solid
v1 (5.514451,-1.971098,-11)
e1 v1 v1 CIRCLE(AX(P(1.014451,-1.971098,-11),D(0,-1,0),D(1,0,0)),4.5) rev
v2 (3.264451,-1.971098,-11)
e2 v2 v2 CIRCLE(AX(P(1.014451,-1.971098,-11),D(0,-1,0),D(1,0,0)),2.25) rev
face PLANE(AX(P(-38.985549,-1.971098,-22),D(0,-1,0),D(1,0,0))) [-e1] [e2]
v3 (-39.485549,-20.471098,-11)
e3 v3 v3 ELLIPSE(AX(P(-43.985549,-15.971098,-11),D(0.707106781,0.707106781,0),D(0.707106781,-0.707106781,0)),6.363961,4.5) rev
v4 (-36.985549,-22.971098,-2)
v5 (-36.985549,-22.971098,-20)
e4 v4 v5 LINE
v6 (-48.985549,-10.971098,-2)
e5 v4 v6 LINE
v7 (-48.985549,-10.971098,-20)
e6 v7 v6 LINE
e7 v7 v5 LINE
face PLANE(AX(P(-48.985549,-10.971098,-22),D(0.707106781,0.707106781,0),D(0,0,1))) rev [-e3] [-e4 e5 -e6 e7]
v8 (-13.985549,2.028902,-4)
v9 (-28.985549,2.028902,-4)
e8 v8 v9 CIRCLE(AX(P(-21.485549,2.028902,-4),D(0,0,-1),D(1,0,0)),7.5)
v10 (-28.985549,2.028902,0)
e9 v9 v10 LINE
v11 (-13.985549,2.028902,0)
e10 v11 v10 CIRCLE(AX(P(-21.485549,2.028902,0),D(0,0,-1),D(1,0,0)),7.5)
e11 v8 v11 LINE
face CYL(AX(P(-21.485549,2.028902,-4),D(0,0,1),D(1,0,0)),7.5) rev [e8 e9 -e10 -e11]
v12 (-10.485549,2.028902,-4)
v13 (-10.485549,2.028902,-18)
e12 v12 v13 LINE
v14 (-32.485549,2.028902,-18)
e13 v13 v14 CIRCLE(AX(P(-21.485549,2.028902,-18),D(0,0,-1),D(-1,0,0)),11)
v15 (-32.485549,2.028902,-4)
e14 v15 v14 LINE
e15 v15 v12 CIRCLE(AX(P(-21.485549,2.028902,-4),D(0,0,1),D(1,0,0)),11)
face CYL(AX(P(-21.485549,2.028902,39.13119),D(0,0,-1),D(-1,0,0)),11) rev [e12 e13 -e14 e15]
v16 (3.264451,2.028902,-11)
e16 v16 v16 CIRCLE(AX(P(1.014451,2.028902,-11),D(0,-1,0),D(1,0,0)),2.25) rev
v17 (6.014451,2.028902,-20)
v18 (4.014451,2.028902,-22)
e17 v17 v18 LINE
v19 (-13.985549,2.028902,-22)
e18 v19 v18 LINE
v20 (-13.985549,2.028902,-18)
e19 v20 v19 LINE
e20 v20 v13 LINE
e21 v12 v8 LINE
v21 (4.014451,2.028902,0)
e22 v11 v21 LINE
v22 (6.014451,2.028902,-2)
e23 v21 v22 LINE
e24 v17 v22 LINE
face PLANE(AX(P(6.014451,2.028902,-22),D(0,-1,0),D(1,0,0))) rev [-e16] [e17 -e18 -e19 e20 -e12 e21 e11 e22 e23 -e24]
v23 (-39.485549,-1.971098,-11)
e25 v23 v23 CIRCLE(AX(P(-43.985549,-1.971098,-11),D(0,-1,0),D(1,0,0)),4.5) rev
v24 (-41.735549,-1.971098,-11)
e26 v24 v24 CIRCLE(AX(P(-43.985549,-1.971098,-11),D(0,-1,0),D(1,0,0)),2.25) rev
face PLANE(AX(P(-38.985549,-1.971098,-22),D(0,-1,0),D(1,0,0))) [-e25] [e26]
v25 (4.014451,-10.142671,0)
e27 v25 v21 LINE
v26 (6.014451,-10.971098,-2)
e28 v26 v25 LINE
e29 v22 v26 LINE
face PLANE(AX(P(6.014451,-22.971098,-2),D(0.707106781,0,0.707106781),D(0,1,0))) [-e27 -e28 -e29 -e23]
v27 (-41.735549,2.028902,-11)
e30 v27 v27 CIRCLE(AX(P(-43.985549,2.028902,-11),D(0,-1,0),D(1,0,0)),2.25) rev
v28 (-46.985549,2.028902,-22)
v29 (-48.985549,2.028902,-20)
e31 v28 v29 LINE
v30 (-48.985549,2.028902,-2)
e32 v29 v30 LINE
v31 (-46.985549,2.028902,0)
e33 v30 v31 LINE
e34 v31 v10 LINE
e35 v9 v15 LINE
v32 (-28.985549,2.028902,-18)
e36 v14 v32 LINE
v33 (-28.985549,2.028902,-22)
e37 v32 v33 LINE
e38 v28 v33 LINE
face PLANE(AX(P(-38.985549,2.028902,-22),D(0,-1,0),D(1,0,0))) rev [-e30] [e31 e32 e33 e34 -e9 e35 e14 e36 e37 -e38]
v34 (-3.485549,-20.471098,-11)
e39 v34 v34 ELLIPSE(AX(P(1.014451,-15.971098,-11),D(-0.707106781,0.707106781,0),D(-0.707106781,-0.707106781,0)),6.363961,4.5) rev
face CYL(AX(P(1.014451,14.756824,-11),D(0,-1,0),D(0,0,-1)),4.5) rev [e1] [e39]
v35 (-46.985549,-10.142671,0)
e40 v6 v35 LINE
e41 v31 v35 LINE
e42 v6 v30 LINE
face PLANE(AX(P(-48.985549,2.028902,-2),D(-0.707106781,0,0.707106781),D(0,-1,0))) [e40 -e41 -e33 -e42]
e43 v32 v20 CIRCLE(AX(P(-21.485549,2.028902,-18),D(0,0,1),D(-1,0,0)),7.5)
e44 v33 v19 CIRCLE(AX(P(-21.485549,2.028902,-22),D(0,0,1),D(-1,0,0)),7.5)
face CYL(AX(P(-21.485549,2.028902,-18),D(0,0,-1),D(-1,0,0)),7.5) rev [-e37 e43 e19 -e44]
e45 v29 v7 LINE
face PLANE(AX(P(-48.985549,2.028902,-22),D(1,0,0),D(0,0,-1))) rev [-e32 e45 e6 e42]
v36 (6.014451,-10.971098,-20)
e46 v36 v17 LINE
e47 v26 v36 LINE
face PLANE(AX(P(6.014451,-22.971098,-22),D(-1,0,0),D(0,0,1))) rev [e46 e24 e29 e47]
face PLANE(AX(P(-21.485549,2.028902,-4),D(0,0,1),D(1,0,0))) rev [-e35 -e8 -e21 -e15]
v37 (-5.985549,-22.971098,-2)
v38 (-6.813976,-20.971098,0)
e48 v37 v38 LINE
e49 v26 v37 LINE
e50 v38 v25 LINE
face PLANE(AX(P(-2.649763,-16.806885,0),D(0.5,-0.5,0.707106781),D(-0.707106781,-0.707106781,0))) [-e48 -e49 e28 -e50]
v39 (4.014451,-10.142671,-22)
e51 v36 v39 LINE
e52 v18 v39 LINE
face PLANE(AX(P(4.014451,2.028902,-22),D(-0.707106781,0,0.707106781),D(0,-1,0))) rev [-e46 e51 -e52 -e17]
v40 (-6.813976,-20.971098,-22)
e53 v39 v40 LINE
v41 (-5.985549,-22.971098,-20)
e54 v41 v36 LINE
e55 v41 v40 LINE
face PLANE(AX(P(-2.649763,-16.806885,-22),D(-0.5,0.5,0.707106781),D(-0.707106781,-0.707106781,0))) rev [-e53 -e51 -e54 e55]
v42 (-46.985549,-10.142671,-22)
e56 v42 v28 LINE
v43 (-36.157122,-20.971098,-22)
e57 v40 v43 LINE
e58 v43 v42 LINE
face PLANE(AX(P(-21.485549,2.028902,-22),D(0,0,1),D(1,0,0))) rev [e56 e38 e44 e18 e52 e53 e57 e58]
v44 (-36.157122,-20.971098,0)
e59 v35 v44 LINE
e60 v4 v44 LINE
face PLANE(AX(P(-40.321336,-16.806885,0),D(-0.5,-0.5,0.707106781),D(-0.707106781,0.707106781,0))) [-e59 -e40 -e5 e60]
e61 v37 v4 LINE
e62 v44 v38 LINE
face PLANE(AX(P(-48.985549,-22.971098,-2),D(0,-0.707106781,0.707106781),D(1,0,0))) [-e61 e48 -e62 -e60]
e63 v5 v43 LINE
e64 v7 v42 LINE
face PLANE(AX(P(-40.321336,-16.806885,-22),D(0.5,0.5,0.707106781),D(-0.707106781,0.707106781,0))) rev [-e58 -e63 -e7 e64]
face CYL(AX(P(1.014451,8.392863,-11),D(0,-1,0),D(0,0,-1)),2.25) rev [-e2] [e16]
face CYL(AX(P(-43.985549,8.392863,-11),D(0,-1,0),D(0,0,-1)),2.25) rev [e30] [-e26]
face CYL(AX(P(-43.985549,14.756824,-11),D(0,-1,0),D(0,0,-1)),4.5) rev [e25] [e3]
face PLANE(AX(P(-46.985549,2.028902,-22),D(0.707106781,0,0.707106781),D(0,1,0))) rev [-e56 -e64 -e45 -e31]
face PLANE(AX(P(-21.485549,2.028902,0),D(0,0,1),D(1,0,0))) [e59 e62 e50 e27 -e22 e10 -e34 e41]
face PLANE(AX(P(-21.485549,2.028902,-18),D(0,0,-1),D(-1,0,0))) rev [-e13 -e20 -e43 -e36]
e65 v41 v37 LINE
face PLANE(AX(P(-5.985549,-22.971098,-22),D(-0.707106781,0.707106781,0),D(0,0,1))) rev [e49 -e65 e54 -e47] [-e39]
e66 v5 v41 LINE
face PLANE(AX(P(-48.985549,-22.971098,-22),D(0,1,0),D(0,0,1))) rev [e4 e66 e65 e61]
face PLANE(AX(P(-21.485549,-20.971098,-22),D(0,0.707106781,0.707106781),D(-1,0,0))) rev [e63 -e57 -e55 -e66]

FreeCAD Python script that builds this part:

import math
import FreeCAD as App
import Part
import Sketcher

V = App.Vector


def edges_at(feature, points):
    """Names of the edges that pass closest to the given points."""
    edges = feature.Shape.Edges
    near = lambda p: min(range(len(edges)), key=lambda i: edges[i].distToShape(Part.Vertex(*p))[0])
    return sorted({f"Edge{near(p) + 1}" for p in points})

doc = App.newDocument("Part")
params = doc.addObject("Spreadsheet::Sheet", "Params")
for row, (alias, value) in enumerate([
    ("sketch1_radius", "17.5 mm"),
    ("sketch1_width", "10 mm"),
    ("sketch1_height", "25 mm"),
    ("pad1_length", "22 mm"),
    ("chamfer_size", "12 mm"),
    ("sketch2_diameter", "4.5 mm"),
    ("pocket1_length", "25 mm"),
    ("sketch3_diameter", "9 mm"),
    ("sketch3_diameter2", "4.5 mm"),
    ("pocket2_length", "21 mm"),
    ("chamfer2_size", "2 mm"),
    ("sketch4_radius", "11 mm"),
    ("sketch4_radius2", "17.5 mm"),
    ("pad2_length", "22 mm"),
    ("sketch5_radius", "11 mm"),
    ("sketch5_radius2", "7.5 mm"),
    ("pad3_length", "4 mm"),
    ("sketch6_radius", "11 mm"),
    ("sketch6_radius2", "7.5 mm"),
    ("pad4_length", "4 mm"),
], start=1):
    params.set(f"A{row}", alias)
    params.set(f"B{row}", "=" + value)
    params.setAlias(f"B{row}", alias)

body = doc.addObject("PartDesign::Body", "Body")

sketch1 = doc.addObject("Sketcher::SketchObject", "Sketch")
body.addObject(sketch1)
sketch1.AttachmentSupport = (doc.XY_Plane, [""])
sketch1.MapMode = "FlatFace"
sketch1.addGeometry([
    Part.LineSegment(V(-48.985549, 2.028902, 0), V(-38.985549, 2.028902, 0)),
    Part.ArcOfCircle(Part.Circle(V(-21.485549, 2.028902, 0), V(0, 0, 1), 17.5), math.radians(180), math.radians(360)),
    Part.LineSegment(V(-3.985549, 2.028902, 0), V(6.014451, 2.028902, 0)),
    Part.LineSegment(V(6.014451, 2.028902, 0), V(6.014451, -22.971098, 0)),
    Part.LineSegment(V(6.014451, -22.971098, 0), V(-48.985549, -22.971098, 0)),
    Part.LineSegment(V(-48.985549, -22.971098, 0), V(-48.985549, 2.028902, 0)),
], False)
sketch1.addConstraint([
    Sketcher.Constraint("Coincident", 0, 2, 1, 1),
    Sketcher.Constraint("Coincident", 1, 2, 2, 1),
    Sketcher.Constraint("Coincident", 2, 2, 3, 1),
    Sketcher.Constraint("Coincident", 3, 2, 4, 1),
    Sketcher.Constraint("Coincident", 4, 2, 5, 1),
    Sketcher.Constraint("Coincident", 5, 2, 0, 1),
    Sketcher.Constraint("Horizontal", 0),
    Sketcher.Constraint("Horizontal", 2),
    Sketcher.Constraint("Vertical", 3),
    Sketcher.Constraint("Horizontal", 4),
    Sketcher.Constraint("Vertical", 5),
    Sketcher.Constraint("Horizontal", 1, 3, 0, 2),
    Sketcher.Constraint("Horizontal", 0, 2, 1, 2),
    Sketcher.Constraint("Equal", 0, 2),
    Sketcher.Constraint("Radius", 1, 17.5),
    Sketcher.Constraint("DistanceX", 0, 1, 0, 2, 10.0),
    Sketcher.Constraint("DistanceY", 3, 2, 3, 1, 25.0),
    Sketcher.Constraint("DistanceY", -1, 1, 1, 3, 2.028902),
    Sketcher.Constraint("DistanceX", 1, 3, -1, 1, 21.485549),
])
sketch1.setExpression("Constraints[14]", "Params.sketch1_radius")
sketch1.setExpression("Constraints[15]", "Params.sketch1_width")
sketch1.setExpression("Constraints[16]", "Params.sketch1_height")
pad1 = doc.addObject("PartDesign::Pad", "Pad")
body.addObject(pad1)
pad1.Profile = sketch1
pad1.setExpression("Length", "Params.pad1_length")
pad1.Reversed = True
doc.recompute()

chamfer = doc.addObject("PartDesign::Chamfer", "Chamfer")
body.addObject(chamfer)
chamfer.Base = (pad1, edges_at(pad1, [(-48.986, -22.971, -11), (6.014, -22.971, -11)]))
chamfer.setExpression("Size", "Params.chamfer_size")

sketch2 = doc.addObject("Sketcher::SketchObject", "Sketch001")
body.addObject(sketch2)
sketch2.AttachmentSupport = (doc.XZ_Plane, [""])
sketch2.MapMode = "FlatFace"
sketch2.AttachmentOffset = App.Placement(V(0, 0, 22.971098), App.Rotation())
sketch2.addGeometry([
    Part.Circle(V(-43.985549, -11, 0), V(0, 0, 1), 2.25),
    Part.Circle(V(1.014451, -11, 0), V(0, 0, 1), 2.25),
], False)
sketch2.addConstraint([
    Sketcher.Constraint("Equal", 0, 1),
    Sketcher.Constraint("Horizontal", 0, 3, 1, 3),
    Sketcher.Constraint("Diameter", 0, 4.5),
    Sketcher.Constraint("DistanceY", 0, 3, -1, 1, 11.0),
    Sketcher.Constraint("DistanceX", 0, 3, 1, 3, 45.0),
    Sketcher.Constraint("DistanceX", 0, 3, -1, 1, 43.985549),
])
sketch2.setExpression("Constraints[2]", "Params.sketch2_diameter")
pocket1 = doc.addObject("PartDesign::Pocket", "Pocket")
body.addObject(pocket1)
pocket1.Profile = sketch2
pocket1.setExpression("Length", "Params.pocket1_length")

sketch3 = doc.addObject("Sketcher::SketchObject", "Sketch002")
body.addObject(sketch3)
sketch3.AttachmentSupport = (doc.XZ_Plane, [""])
sketch3.MapMode = "FlatFace"
sketch3.AttachmentOffset = App.Placement(V(0, 0, 22.971098), App.Rotation())
sketch3.addGeometry([
    Part.Circle(V(-43.985549, -11, 0), V(0, 0, 1), 4.5),
    Part.Circle(V(-43.985549, -11, 0), V(0, 0, 1), 2.25),
    Part.Circle(V(1.014451, -11, 0), V(0, 0, 1), 4.5),
    Part.Circle(V(1.014451, -11, 0), V(0, 0, 1), 2.25),
], False)
sketch3.addConstraint([
    Sketcher.Constraint("Coincident", 1, 3, 0, 3),
    Sketcher.Constraint("Coincident", 3, 3, 2, 3),
    Sketcher.Constraint("Equal", 0, 2),
    Sketcher.Constraint("Equal", 1, 3),
    Sketcher.Constraint("Horizontal", 1, 3, 2, 3),
    Sketcher.Constraint("Diameter", 0, 9.0),
    Sketcher.Constraint("Diameter", 1, 4.5),
    Sketcher.Constraint("DistanceY", 0, 3, -1, 1, 11.0),
    Sketcher.Constraint("DistanceX", 0, 3, 2, 3, 45.0),
    Sketcher.Constraint("DistanceX", 0, 3, -1, 1, 43.985549),
])
sketch3.setExpression("Constraints[5]", "Params.sketch3_diameter")
sketch3.setExpression("Constraints[6]", "Params.sketch3_diameter2")
pocket2 = doc.addObject("PartDesign::Pocket", "Pocket001")
body.addObject(pocket2)
pocket2.Profile = sketch3
pocket2.setExpression("Length", "Params.pocket2_length")
doc.recompute()

chamfer2 = doc.addObject("PartDesign::Chamfer", "Chamfer001")
body.addObject(chamfer2)
chamfer2.Base = (pocket2, edges_at(pocket2, [
    (6.014, -4.471, -22),
    (-21.486, -22.971, 0),
    (-21.486, -22.971, -22),
    (-48.986, -4.471, 0),
    (-42.986, -16.971, 0),
    (0.014, -16.971, 0),
    (-48.986, -4.471, -22),
    (-42.986, -16.971, -22),
    (0.014, -16.971, -22),
    (6.014, -4.471, 0),
]))
chamfer2.setExpression("Size", "Params.chamfer2_size")

sketch4 = doc.addObject("Sketcher::SketchObject", "Sketch003")
body.addObject(sketch4)
sketch4.AttachmentSupport = (doc.XY_Plane, [""])
sketch4.MapMode = "FlatFace"
sketch4.addGeometry([
    Part.LineSegment(V(-10.485549, 2.028902, 0), V(-3.985549, 2.028902, 0)),
    Part.ArcOfCircle(Part.Circle(V(-21.485549, 2.028902, 0), V(0, 0, 1), 17.5), math.radians(180), math.radians(360)),
    Part.LineSegment(V(-38.985549, 2.028902, 0), V(-32.485549, 2.028902, 0)),
    Part.ArcOfCircle(Part.Circle(V(-21.485549, 2.028902, 0), V(0, 0, 1), 11), math.radians(180), math.radians(360)),
], False)
sketch4.addConstraint([
    Sketcher.Constraint("Coincident", 0, 2, 1, 2),
    Sketcher.Constraint("Coincident", 1, 1, 2, 1),
    Sketcher.Constraint("Coincident", 2, 2, 3, 1),
    Sketcher.Constraint("Coincident", 3, 2, 0, 1),
    Sketcher.Constraint("Horizontal", 0),
    Sketcher.Constraint("Horizontal", 2),
    Sketcher.Constraint("Coincident", 3, 3, 1, 3),
    Sketcher.Constraint("Horizontal", 3, 3, 0, 2),
    Sketcher.Constraint("Horizontal", 0, 2, 1, 1),
    Sketcher.Constraint("Radius", 3, 11.0),
    Sketcher.Constraint("Radius", 1, 17.5),
    Sketcher.Constraint("DistanceY", -1, 1, 1, 3, 2.028902),
    Sketcher.Constraint("DistanceX", 1, 3, -1, 1, 21.485549),
])
sketch4.setExpression("Constraints[9]", "Params.sketch4_radius")
sketch4.setExpression("Constraints[10]", "Params.sketch4_radius2")
pad2 = doc.addObject("PartDesign::Pad", "Pad001")
body.addObject(pad2)
pad2.Profile = sketch4
pad2.setExpression("Length", "Params.pad2_length")
pad2.Reversed = True

sketch5 = doc.addObject("Sketcher::SketchObject", "Sketch004")
body.addObject(sketch5)
sketch5.AttachmentSupport = (doc.XY_Plane, [""])
sketch5.MapMode = "FlatFace"
sketch5.addGeometry([
    Part.LineSegment(V(-28.985549, 2.028902, 0), V(-32.485549, 2.028902, 0)),
    Part.ArcOfCircle(Part.Circle(V(-21.485549, 2.028902, 0), V(0, 0, 1), 11), math.radians(180), math.radians(360)),
    Part.LineSegment(V(-10.485549, 2.028902, 0), V(-13.985549, 2.028902, 0)),
    Part.ArcOfCircle(Part.Circle(V(-21.485549, 2.028902, 0), V(0, 0, 1), 7.5), math.radians(180), math.radians(360)),
], False)
sketch5.addConstraint([
    Sketcher.Constraint("Coincident", 0, 2, 1, 1),
    Sketcher.Constraint("Coincident", 1, 2, 2, 1),
    Sketcher.Constraint("Coincident", 2, 2, 3, 2),
    Sketcher.Constraint("Coincident", 3, 1, 0, 1),
    Sketcher.Constraint("Horizontal", 0),
    Sketcher.Constraint("Horizontal", 2),
    Sketcher.Constraint("Coincident", 3, 3, 1, 3),
    Sketcher.Constraint("Horizontal", 3, 3, 0, 2),
    Sketcher.Constraint("Horizontal", 0, 2, 1, 2),
    Sketcher.Constraint("Radius", 1, 11.0),
    Sketcher.Constraint("Radius", 3, 7.5),
    Sketcher.Constraint("DistanceY", -1, 1, 1, 3, 2.028902),
    Sketcher.Constraint("DistanceX", 1, 3, -1, 1, 21.485549),
])
sketch5.setExpression("Constraints[9]", "Params.sketch5_radius")
sketch5.setExpression("Constraints[10]", "Params.sketch5_radius2")
pad3 = doc.addObject("PartDesign::Pad", "Pad002")
body.addObject(pad3)
pad3.Profile = sketch5
pad3.setExpression("Length", "Params.pad3_length")
pad3.Reversed = True

sketch6 = doc.addObject("Sketcher::SketchObject", "Sketch005")
body.addObject(sketch6)
sketch6.AttachmentSupport = (doc.XY_Plane, [""])
sketch6.MapMode = "FlatFace"
sketch6.AttachmentOffset = App.Placement(V(0, 0, -18), App.Rotation())
sketch6.addGeometry([
    Part.LineSegment(V(-13.985549, 2.028902, 0), V(-10.485549, 2.028902, 0)),
    Part.ArcOfCircle(Part.Circle(V(-21.485549, 2.028902, 0), V(0, 0, 1), 11), math.radians(180), math.radians(360)),
    Part.LineSegment(V(-32.485549, 2.028902, 0), V(-28.985549, 2.028902, 0)),
    Part.ArcOfCircle(Part.Circle(V(-21.485549, 2.028902, 0), V(0, 0, 1), 7.5), math.radians(180), math.radians(360)),
], False)
sketch6.addConstraint([
    Sketcher.Constraint("Coincident", 0, 2, 1, 2),
    Sketcher.Constraint("Coincident", 1, 1, 2, 1),
    Sketcher.Constraint("Coincident", 2, 2, 3, 1),
    Sketcher.Constraint("Coincident", 3, 2, 0, 1),
    Sketcher.Constraint("Horizontal", 0),
    Sketcher.Constraint("Horizontal", 2),
    Sketcher.Constraint("Coincident", 3, 3, 1, 3),
    Sketcher.Constraint("Horizontal", 3, 3, 0, 2),
    Sketcher.Constraint("Horizontal", 0, 2, 1, 1),
    Sketcher.Constraint("Radius", 1, 11.0),
    Sketcher.Constraint("Radius", 3, 7.5),
    Sketcher.Constraint("DistanceY", -1, 1, 1, 3, 2.028902),
    Sketcher.Constraint("DistanceX", 1, 3, -1, 1, 21.485549),
])
sketch6.setExpression("Constraints[9]", "Params.sketch6_radius")
sketch6.setExpression("Constraints[10]", "Params.sketch6_radius2")
pad4 = doc.addObject("PartDesign::Pad", "Pad003")
body.addObject(pad4)
pad4.Profile = sketch6
pad4.setExpression("Length", "Params.pad4_length")
pad4.Reversed = True

doc.recompute()
